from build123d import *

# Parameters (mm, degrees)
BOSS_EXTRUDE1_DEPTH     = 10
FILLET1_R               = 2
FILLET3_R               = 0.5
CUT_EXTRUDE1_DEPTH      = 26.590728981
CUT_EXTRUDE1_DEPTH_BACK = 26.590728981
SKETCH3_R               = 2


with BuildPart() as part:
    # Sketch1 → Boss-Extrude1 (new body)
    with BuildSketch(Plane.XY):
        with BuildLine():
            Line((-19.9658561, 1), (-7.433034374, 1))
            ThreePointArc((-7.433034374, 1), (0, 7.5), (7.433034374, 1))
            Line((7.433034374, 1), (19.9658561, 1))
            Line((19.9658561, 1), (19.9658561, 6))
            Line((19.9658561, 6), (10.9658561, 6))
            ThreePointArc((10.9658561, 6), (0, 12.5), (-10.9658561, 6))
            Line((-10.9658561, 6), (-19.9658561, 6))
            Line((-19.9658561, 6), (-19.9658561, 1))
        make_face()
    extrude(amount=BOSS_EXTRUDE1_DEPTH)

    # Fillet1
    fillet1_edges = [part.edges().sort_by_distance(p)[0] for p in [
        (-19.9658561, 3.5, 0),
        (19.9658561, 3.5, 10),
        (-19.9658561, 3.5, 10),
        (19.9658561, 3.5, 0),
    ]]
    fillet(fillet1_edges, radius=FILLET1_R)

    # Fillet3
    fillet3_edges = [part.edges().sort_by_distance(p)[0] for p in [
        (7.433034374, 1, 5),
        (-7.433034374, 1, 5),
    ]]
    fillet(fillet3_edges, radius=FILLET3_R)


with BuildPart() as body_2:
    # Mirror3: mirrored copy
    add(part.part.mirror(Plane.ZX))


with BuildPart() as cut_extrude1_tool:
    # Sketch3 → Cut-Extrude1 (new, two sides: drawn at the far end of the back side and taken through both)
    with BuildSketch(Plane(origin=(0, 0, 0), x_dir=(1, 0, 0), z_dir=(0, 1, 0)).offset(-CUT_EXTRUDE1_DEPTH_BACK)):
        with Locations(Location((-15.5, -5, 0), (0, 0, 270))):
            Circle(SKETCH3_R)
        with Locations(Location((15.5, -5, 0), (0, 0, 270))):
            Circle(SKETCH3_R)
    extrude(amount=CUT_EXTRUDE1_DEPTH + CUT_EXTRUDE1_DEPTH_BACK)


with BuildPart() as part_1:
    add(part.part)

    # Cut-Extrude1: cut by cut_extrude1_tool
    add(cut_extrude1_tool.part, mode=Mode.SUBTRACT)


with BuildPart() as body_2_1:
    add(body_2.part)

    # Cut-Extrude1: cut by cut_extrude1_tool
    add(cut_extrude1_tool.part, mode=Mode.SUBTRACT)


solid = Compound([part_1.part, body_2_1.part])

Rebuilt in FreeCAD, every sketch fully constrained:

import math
import FreeCAD as App
import Part
import Sketcher

V = App.Vector


def edges_at(feature, points):
    """Names of the edges that pass closest to the given points."""
    edges = feature.Shape.Edges
    near = lambda p: min(range(len(edges)), key=lambda i: edges[i].distToShape(Part.Vertex(*p))[0])
    return sorted({f"Edge{near(p) + 1}" for p in points})

doc = App.newDocument("Part")
body = doc.addObject("PartDesign::Body", "Body")

# Sketch on XY plane
sketch1 = body.newObject("Sketcher::SketchObject", "Sketch")
sketch1.AttachmentSupport = (doc.getObject("XY_Plane"), [""])
sketch1.MapMode = "FlatFace"
sketch1.addGeometry([
    Part.LineSegment(V(-20, 1, 0), V(-7, 1, 0)),  # 0
    Part.ArcOfCircle(Part.Circle(V(0, 0, 0), V(0, 0, 1), 8), math.radians(8), math.radians(172)),  # 1
    Part.LineSegment(V(7, 1, 0), V(20, 1, 0)),  # 2
    Part.LineSegment(V(20, 1, 0), V(20, 6, 0)),  # 3
    Part.LineSegment(V(20, 6, 0), V(11, 6, 0)),  # 4
    Part.ArcOfCircle(Part.Circle(V(0, 0, 0), V(0, 0, 1), 12), math.radians(29), math.radians(151)),  # 5
    Part.LineSegment(V(-11, 6, 0), V(-20, 6, 0)),  # 6
    Part.LineSegment(V(-20, 6, 0), V(-20, 1, 0)),  # 7
], False)
sketch1.addConstraint([
    Sketcher.Constraint("Coincident", 0, 2, 1, 2),
    Sketcher.Constraint("Coincident", 1, 1, 2, 1),
    Sketcher.Constraint("Coincident", 2, 2, 3, 1),
    Sketcher.Constraint("Coincident", 3, 2, 4, 1),
    Sketcher.Constraint("Coincident", 4, 2, 5, 1),
    Sketcher.Constraint("Coincident", 5, 2, 6, 1),
    Sketcher.Constraint("Coincident", 6, 2, 7, 1),
    Sketcher.Constraint("Coincident", 7, 2, 0, 1),
    Sketcher.Constraint("Horizontal", 0),
    Sketcher.Constraint("Horizontal", 2),
    Sketcher.Constraint("Vertical", 3),
    Sketcher.Constraint("Horizontal", 4),
    Sketcher.Constraint("Horizontal", 6),
    Sketcher.Constraint("Vertical", 7),
    Sketcher.Constraint("Coincident", 1, 3, -1, 1),
    Sketcher.Constraint("Coincident", 5, 3, -1, 1),
    Sketcher.Constraint("Symmetric", 3, 2, 6, 2, -2),
    Sketcher.Constraint("Horizontal", 0, 2, 1, 1),
    Sketcher.Constraint("Radius", 1, 7.5),
    Sketcher.Constraint("Radius", 5, 12.5),
    Sketcher.Constraint("DistanceX", 4, 2, 4, 1, 9.0),
    Sketcher.Constraint("DistanceY", 3, 1, 3, 2, 5.0),
    Sketcher.Constraint("DistanceY", -1, 1, 0, 2, 1.0),
])
pad1 = body.newObject("PartDesign::Pad", "Pad")
pad1.Profile = sketch1
pad1.Length = 10
doc.recompute()

fillet = body.newObject("PartDesign::Fillet", "Fillet")
fillet.Base = (pad1, edges_at(pad1, [
    (-19.966, 3.5, 0),
    (19.966, 3.5, 10),
    (-19.966, 3.5, 10),
    (19.966, 3.5, 0),
]))
fillet.Radius = 2
doc.recompute()

fillet2 = body.newObject("PartDesign::Fillet", "Fillet001")
fillet2.Base = (fillet, edges_at(fillet, [(7.433, 1, 5), (-7.433, 1, 5)]))
fillet2.Radius = 0.5
body2 = doc.addObject("PartDesign::Body", "Body001")
doc.recompute()

mirroring = doc.addObject("Part::Mirroring", "Mirroring")
mirroring.Source = body
mirroring.Base = V(0, 0, 0)
mirroring.Normal = V(0, 1, 0)
body2.BaseFeature = mirroring
doc.recompute()
body3 = doc.addObject("PartDesign::Body", "Body002")
body3.AllowCompound = True

# Sketch on XZ plane
sketch2 = body3.newObject("Sketcher::SketchObject", "Sketch001")
sketch2.AttachmentSupport = (doc.getObject("XZ_Plane002"), [""])
sketch2.MapMode = "FlatFace"
sketch2.addGeometry([
    Part.Circle(V(-15.5, 5, 0), V(0, 0, 1), 2),
    Part.Circle(V(15.5, 5, 0), V(0, 0, 1), 2),
], False)
sketch2.addConstraint([
    Sketcher.Constraint("Equal", 0, 1),
    Sketcher.Constraint("Symmetric", 0, 3, 1, 3, -2),
    Sketcher.Constraint("Diameter", 0, 4.0),
    Sketcher.Constraint("DistanceY", -1, 1, 0, 3, 5.0),
    Sketcher.Constraint("DistanceX", 0, 3, 1, 3, 31.0),
])
pad2 = body3.newObject("PartDesign::Pad", "Pad001")
pad2.Profile = sketch2
pad2.Type = "TwoLengths"
pad2.Length = 26.590729
pad2.Length2 = 26.590729
pad2.Reversed = True
doc.recompute()

body4 = doc.addObject("PartDesign::Body", "Body003")
body4.BaseFeature = body3
boolean = body.newObject("PartDesign::Boolean", "Boolean")
boolean.Type = "Cut"
boolean.addObjects([body4])
doc.recompute()

boolean2 = body2.newObject("PartDesign::Boolean", "Boolean001")
boolean2.Type = "Cut"
boolean2.addObjects([body3])
mirroring.Visibility = False

doc.recompute()
